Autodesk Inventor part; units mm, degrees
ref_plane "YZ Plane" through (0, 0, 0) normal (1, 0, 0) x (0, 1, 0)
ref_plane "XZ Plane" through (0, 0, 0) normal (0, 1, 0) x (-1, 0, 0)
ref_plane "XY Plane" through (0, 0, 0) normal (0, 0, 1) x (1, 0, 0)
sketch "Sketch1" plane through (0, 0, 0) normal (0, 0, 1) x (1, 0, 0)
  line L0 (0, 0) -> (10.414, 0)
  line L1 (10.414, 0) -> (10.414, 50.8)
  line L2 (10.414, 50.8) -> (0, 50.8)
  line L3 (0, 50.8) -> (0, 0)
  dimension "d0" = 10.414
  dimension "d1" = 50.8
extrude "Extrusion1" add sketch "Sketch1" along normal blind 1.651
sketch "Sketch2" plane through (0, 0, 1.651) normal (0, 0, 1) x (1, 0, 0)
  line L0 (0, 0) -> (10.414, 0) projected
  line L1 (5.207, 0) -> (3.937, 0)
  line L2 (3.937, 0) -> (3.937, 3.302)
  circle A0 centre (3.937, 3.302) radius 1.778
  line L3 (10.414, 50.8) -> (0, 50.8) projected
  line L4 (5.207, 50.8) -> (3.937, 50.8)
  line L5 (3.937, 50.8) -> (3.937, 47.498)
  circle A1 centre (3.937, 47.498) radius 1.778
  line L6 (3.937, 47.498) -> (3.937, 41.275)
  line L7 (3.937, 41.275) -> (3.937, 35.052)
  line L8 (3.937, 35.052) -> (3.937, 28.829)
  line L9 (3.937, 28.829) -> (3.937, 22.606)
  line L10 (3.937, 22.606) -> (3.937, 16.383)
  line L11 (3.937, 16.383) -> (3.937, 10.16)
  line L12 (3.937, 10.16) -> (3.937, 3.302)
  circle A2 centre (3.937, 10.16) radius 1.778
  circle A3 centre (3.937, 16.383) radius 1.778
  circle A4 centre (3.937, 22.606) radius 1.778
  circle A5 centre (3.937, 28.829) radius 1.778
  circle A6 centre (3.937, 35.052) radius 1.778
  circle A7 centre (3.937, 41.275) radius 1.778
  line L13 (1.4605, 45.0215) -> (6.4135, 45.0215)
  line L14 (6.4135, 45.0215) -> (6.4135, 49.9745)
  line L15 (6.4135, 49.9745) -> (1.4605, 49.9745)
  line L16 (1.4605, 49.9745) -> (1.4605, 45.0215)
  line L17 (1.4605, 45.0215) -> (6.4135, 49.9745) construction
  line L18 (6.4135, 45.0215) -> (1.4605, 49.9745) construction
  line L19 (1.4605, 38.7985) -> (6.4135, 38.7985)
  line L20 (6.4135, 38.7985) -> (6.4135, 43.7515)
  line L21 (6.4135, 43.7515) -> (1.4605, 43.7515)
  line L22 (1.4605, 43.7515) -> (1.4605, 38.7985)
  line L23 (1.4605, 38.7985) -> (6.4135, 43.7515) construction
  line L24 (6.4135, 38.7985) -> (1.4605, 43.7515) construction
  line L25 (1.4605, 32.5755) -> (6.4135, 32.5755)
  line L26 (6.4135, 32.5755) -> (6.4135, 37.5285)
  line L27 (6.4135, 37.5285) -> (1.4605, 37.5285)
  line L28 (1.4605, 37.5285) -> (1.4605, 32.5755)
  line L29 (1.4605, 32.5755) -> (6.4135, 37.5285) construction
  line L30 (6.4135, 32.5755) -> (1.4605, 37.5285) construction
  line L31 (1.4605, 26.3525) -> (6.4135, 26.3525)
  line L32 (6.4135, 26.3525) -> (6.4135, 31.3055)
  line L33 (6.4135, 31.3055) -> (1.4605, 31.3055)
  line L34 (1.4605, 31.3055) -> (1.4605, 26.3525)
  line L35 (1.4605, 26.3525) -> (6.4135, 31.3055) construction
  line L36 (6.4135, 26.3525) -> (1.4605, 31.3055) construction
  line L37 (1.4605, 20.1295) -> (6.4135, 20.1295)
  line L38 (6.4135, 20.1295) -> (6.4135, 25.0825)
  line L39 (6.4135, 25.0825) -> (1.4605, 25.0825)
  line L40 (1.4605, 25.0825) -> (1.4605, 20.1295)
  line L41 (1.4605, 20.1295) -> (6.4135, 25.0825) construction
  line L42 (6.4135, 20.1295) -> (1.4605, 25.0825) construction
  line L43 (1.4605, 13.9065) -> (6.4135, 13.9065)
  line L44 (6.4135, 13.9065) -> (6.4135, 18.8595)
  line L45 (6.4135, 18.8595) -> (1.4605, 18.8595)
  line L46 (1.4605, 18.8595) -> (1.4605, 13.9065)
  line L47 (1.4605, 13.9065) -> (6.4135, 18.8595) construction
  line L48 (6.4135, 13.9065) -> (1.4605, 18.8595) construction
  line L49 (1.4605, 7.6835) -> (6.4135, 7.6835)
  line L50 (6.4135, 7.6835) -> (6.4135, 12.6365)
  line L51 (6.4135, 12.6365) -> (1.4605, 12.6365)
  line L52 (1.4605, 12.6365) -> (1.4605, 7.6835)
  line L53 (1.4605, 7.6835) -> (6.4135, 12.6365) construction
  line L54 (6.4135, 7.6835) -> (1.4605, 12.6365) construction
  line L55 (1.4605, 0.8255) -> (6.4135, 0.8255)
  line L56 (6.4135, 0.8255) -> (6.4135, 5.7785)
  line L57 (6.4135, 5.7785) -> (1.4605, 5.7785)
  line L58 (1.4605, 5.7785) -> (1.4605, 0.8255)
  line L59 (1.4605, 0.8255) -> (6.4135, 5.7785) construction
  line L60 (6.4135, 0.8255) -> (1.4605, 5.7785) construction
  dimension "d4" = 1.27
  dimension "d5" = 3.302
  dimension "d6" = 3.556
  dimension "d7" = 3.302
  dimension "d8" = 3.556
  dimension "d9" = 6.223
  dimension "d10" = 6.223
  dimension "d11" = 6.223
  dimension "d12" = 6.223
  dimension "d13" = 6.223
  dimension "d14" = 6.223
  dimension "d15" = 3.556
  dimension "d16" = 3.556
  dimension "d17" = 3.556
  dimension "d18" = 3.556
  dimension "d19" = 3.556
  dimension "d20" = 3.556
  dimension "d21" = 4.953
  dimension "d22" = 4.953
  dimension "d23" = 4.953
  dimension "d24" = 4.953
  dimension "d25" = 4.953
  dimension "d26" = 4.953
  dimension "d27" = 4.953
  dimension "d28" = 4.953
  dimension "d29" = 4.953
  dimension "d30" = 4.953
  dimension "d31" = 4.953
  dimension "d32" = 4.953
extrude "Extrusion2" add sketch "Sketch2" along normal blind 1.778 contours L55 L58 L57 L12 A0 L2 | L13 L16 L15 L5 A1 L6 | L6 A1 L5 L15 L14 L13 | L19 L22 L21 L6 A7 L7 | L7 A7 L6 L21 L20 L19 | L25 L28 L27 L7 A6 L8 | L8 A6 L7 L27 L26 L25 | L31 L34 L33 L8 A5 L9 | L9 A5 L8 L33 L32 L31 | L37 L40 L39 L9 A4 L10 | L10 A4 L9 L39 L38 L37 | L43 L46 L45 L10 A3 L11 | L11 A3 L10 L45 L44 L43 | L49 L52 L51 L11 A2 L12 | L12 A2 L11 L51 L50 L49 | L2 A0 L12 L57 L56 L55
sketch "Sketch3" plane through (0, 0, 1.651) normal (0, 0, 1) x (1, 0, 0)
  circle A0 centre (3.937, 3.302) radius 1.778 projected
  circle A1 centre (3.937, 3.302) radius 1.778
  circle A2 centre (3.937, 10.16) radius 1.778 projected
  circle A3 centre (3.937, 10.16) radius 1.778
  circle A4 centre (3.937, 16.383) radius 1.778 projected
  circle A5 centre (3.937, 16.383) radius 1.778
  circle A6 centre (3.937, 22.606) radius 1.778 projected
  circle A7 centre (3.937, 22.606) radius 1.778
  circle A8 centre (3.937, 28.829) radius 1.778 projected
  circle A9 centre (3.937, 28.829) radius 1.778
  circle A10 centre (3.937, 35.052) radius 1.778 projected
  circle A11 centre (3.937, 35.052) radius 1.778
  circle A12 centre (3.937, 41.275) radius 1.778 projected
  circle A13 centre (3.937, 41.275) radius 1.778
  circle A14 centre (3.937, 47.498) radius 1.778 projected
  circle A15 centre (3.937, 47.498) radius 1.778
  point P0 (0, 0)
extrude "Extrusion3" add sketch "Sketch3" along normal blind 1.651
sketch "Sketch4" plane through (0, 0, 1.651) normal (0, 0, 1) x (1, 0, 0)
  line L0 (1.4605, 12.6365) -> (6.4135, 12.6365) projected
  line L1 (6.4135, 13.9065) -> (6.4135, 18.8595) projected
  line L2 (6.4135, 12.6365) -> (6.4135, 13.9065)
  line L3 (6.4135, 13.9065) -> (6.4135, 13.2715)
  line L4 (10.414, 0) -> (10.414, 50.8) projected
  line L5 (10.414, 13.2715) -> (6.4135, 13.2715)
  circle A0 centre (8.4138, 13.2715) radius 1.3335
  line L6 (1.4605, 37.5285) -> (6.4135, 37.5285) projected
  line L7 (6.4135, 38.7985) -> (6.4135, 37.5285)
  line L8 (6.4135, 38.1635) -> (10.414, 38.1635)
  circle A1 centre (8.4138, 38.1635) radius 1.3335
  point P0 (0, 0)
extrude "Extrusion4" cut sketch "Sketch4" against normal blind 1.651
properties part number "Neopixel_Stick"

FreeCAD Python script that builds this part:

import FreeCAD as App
import Part
import Sketcher
from FreeCAD import Vector
Q = App.Units.Quantity


def add_polygon(sketch, points):
    """Adds a closed chain of lines whose ends are joined by coincident constraints."""
    first, n = sketch.GeometryCount, len(points)
    for a, b in zip(points, points[1:] + points[:1]):
        sketch.addGeometry(Part.LineSegment(App.Vector(*a, 0), App.Vector(*b, 0)), False)
    for i in range(n):
        sketch.addConstraint(Sketcher.Constraint("Coincident", first + i, 2, first + (i + 1) % n, 1))

doc = App.newDocument("Part")
body = doc.addObject("PartDesign::Body", "Body")

# Sketch on XY plane
sketch1 = doc.addObject("Sketcher::SketchObject", "Sketch")
body.addObject(sketch1)
sketch1.AttachmentSupport = (doc.XY_Plane, [""])
sketch1.MapMode = "FlatFace"
add_polygon(sketch1, [(0, 51), (0, 0), (10, 0), (10, 51)])  # lines 0-3
sketch1.addConstraint([
    Sketcher.Constraint("Vertical", 0),
    Sketcher.Constraint("Horizontal", 1),
    Sketcher.Constraint("Vertical", 2),
    Sketcher.Constraint("Horizontal", 3),
    Sketcher.Constraint("Coincident", 0, 2, -1, 1),
    Sketcher.Constraint("DistanceY", 0, 2, 0, 1, Q("2 in")),
    Sketcher.Constraint("DistanceX", 1, 1, 1, 2, Q("0.41 in")),
])
pad1 = doc.addObject("PartDesign::Pad", "Pad")
body.addObject(pad1)
pad1.Profile = sketch1
pad1.Length = Q("0.065 in")

# Sketch on XY plane
sketch2 = doc.addObject("Sketcher::SketchObject", "Sketch001")
body.addObject(sketch2)
sketch2.AttachmentSupport = (doc.XY_Plane, [""])
sketch2.MapMode = "FlatFace"
sketch2.AttachmentOffset = App.Placement(Vector(0, 0, 0.065 * 25.4), App.Rotation())
add_polygon(sketch2, [(1.5, 0.8), (6.4, 0.8), (6.4, 5.8), (1.5, 5.8)])  # lines 0-3
sketch2.addGeometry(Part.Circle(Vector(3.9, 3.3, 0), Vector(0, 0, 1), 1.8), False)  # 4
add_polygon(sketch2, [(1.5, 45), (6.4, 45), (6.4, 50), (1.5, 50)])  # lines 5-8
sketch2.addGeometry(Part.Circle(Vector(3.9, 47.5, 0), Vector(0, 0, 1), 1.8), False)  # 9
add_polygon(sketch2, [(1.5, 38.8), (6.4, 38.8), (6.4, 43.8), (1.5, 43.8)])  # lines 10-13
sketch2.addGeometry(Part.Circle(Vector(3.9, 41.3, 0), Vector(0, 0, 1), 1.8), False)  # 14
add_polygon(sketch2, [(1.5, 32.6), (6.4, 32.6), (6.4, 37.5), (1.5, 37.5)])  # lines 15-18
sketch2.addGeometry(Part.Circle(Vector(3.9, 35.1, 0), Vector(0, 0, 1), 1.8), False)  # 19
add_polygon(sketch2, [(1.5, 26.4), (6.4, 26.4), (6.4, 31.3), (1.5, 31.3)])  # lines 20-23
sketch2.addGeometry(Part.Circle(Vector(3.9, 28.8, 0), Vector(0, 0, 1), 1.8), False)  # 24
add_polygon(sketch2, [(1.5, 20.1), (6.4, 20.1), (6.4, 25.1), (1.5, 25.1)])  # lines 25-28
sketch2.addGeometry(Part.Circle(Vector(3.9, 22.6, 0), Vector(0, 0, 1), 1.8), False)  # 29
add_polygon(sketch2, [(1.5, 13.9), (6.4, 13.9), (6.4, 18.9), (1.5, 18.9)])  # lines 30-33
sketch2.addGeometry(Part.Circle(Vector(3.9, 16.4, 0), Vector(0, 0, 1), 1.8), False)  # 34
add_polygon(sketch2, [(1.5, 7.7), (6.4, 7.7), (6.4, 12.6), (1.5, 12.6)])  # lines 35-38
sketch2.addGeometry(Part.Circle(Vector(3.9, 10.2, 0), Vector(0, 0, 1), 1.8), False)  # 39
sketch2.addConstraint([
    Sketcher.Constraint("Horizontal", 0),
    Sketcher.Constraint("Vertical", 1),
    Sketcher.Constraint("Horizontal", 2),
    Sketcher.Constraint("Vertical", 3),
    Sketcher.Constraint("Horizontal", 5),
    Sketcher.Constraint("Vertical", 6),
    Sketcher.Constraint("Horizontal", 7),
    Sketcher.Constraint("Vertical", 8),
    Sketcher.Constraint("Horizontal", 10),
    Sketcher.Constraint("Vertical", 11),
    Sketcher.Constraint("Horizontal", 12),
    Sketcher.Constraint("Vertical", 13),
    Sketcher.Constraint("Horizontal", 15),
    Sketcher.Constraint("Vertical", 16),
    Sketcher.Constraint("Horizontal", 17),
    Sketcher.Constraint("Vertical", 18),
    Sketcher.Constraint("Horizontal", 20),
    Sketcher.Constraint("Vertical", 21),
    Sketcher.Constraint("Horizontal", 22),
    Sketcher.Constraint("Vertical", 23),
    Sketcher.Constraint("Horizontal", 25),
    Sketcher.Constraint("Vertical", 26),
    Sketcher.Constraint("Horizontal", 27),
    Sketcher.Constraint("Vertical", 28),
    Sketcher.Constraint("Horizontal", 30),
    Sketcher.Constraint("Vertical", 31),
    Sketcher.Constraint("Horizontal", 32),
    Sketcher.Constraint("Vertical", 33),
    Sketcher.Constraint("Horizontal", 35),
    Sketcher.Constraint("Vertical", 36),
    Sketcher.Constraint("Horizontal", 37),
    Sketcher.Constraint("Vertical", 38),
    Sketcher.Constraint("Equal", 4, 9),
    Sketcher.Constraint("Equal", 9, 14),
    Sketcher.Constraint("Equal", 14, 19),
    Sketcher.Constraint("Equal", 19, 24),
    Sketcher.Constraint("Equal", 24, 29),
    Sketcher.Constraint("Equal", 29, 34),
    Sketcher.Constraint("Equal", 34, 39),
    Sketcher.Constraint("Vertical", 4, 3, 9, 3),
    Sketcher.Constraint("Vertical", 9, 3, 14, 3),
    Sketcher.Constraint("Vertical", 14, 3, 19, 3),
    Sketcher.Constraint("Vertical", 19, 3, 24, 3),
    Sketcher.Constraint("Vertical", 24, 3, 29, 3),
    Sketcher.Constraint("Vertical", 29, 3, 34, 3),
    Sketcher.Constraint("Vertical", 34, 3, 39, 3),
    Sketcher.Constraint("Vertical", 1, 2, 5, 2),
    Sketcher.Constraint("Vertical", 3, 2, 7, 2),
    Sketcher.Constraint("Vertical", 6, 2, 10, 2),
    Sketcher.Constraint("Vertical", 8, 2, 12, 2),
    Sketcher.Constraint("Vertical", 11, 2, 15, 2),
    Sketcher.Constraint("Vertical", 13, 2, 17, 2),
    Sketcher.Constraint("Vertical", 16, 2, 20, 2),
    Sketcher.Constraint("Vertical", 18, 2, 22, 2),
    Sketcher.Constraint("Vertical", 21, 2, 25, 2),
    Sketcher.Constraint("Vertical", 23, 2, 27, 2),
    Sketcher.Constraint("Vertical", 26, 2, 30, 2),
    Sketcher.Constraint("Vertical", 28, 2, 32, 2),
    Sketcher.Constraint("Vertical", 31, 2, 35, 2),
    Sketcher.Constraint("Vertical", 33, 2, 37, 2),
    Sketcher.Constraint("Equal", 37, 1),
    Sketcher.Constraint("Equal", 3, 6),
    Sketcher.Constraint("Equal", 8, 11),
    Sketcher.Constraint("Equal", 13, 16),
    Sketcher.Constraint("Equal", 18, 21),
    Sketcher.Constraint("Equal", 23, 26),
    Sketcher.Constraint("Equal", 28, 31),
    Sketcher.Constraint("Equal", 33, 36),
    Sketcher.Constraint("Diameter", 4, Q("0.14 in")),
    Sketcher.Constraint("DistanceX", 0, 1, 0, 2, Q("0.195 in")),
    Sketcher.Constraint("DistanceY", -1, 1, 4, 3, Q("0.13 in")),
    Sketcher.Constraint("DistanceY", 11, 2, 5, 2, Q("0.05 in")),
    Sketcher.Constraint("DistanceY", 16, 2, 10, 2, Q("0.05 in")),
    Sketcher.Constraint("DistanceY", 21, 2, 15, 2, Q("0.05 in")),
    Sketcher.Constraint("DistanceY", 26, 2, 20, 2, Q("0.05 in")),
    Sketcher.Constraint("DistanceY", 31, 2, 25, 2, Q("0.05 in")),
    Sketcher.Constraint("DistanceY", 36, 2, 30, 2, Q("0.05 in")),
    Sketcher.Constraint("DistanceY", 14, 3, 9, 3, Q("0.245 in")),
    Sketcher.Constraint("DistanceY", 19, 3, 14, 3, Q("0.245 in")),
    Sketcher.Constraint("DistanceY", 24, 3, 19, 3, Q("0.245 in")),
    Sketcher.Constraint("DistanceY", 29, 3, 24, 3, Q("0.245 in")),
    Sketcher.Constraint("DistanceY", 34, 3, 29, 3, Q("0.245 in")),
    Sketcher.Constraint("DistanceY", 39, 3, 34, 3, Q("0.245 in")),
    Sketcher.Constraint("DistanceY", -1, 1, 39, 3, Q("0.4 in")),
    Sketcher.Constraint("DistanceY", 1, 2, 30, 2, Q("0.32 in")),
    Sketcher.Constraint("DistanceX", -1, 1, 4, 3, Q("0.155 in")),
    Sketcher.Constraint("DistanceX", -1, 1, 0, 2, Q("0.2525 in")),
    Sketcher.Constraint("DistanceY", -1, 1, 0, 2, Q("0.0325 in")),
])
pad2 = doc.addObject("PartDesign::Pad", "Pad001")
body.addObject(pad2)
pad2.Profile = sketch2
pad2.Length = Q("0.07 in")

# Sketch on XY plane
sketch3 = doc.addObject("Sketcher::SketchObject", "Sketch002")
body.addObject(sketch3)
sketch3.AttachmentSupport = (doc.XY_Plane, [""])
sketch3.MapMode = "FlatFace"
sketch3.AttachmentOffset = App.Placement(Vector(0, 0, 0.065 * 25.4), App.Rotation())
sketch3.addGeometry([
    Part.Circle(Vector(3.9, 3.3, 0), Vector(0, 0, 1), 1.8),  # 0
    Part.Circle(Vector(3.9, 10.2, 0), Vector(0, 0, 1), 1.8),  # 1
    Part.Circle(Vector(3.9, 16.4, 0), Vector(0, 0, 1), 1.8),  # 2
    Part.Circle(Vector(3.9, 22.6, 0), Vector(0, 0, 1), 1.8),  # 3
    Part.Circle(Vector(3.9, 28.8, 0), Vector(0, 0, 1), 1.8),  # 4
    Part.Circle(Vector(3.9, 35.1, 0), Vector(0, 0, 1), 1.8),  # 5
    Part.Circle(Vector(3.9, 41.3, 0), Vector(0, 0, 1), 1.8),  # 6
    Part.Circle(Vector(3.9, 47.5, 0), Vector(0, 0, 1), 1.8),  # 7
], False)
sketch3.addConstraint([
    Sketcher.Constraint("Equal", 0, 1),
    Sketcher.Constraint("Equal", 1, 2),
    Sketcher.Constraint("Equal", 2, 3),
    Sketcher.Constraint("Equal", 3, 4),
    Sketcher.Constraint("Equal", 4, 5),
    Sketcher.Constraint("Equal", 5, 6),
    Sketcher.Constraint("Equal", 6, 7),
    Sketcher.Constraint("Vertical", 0, 3, 1, 3),
    Sketcher.Constraint("Vertical", 1, 3, 2, 3),
    Sketcher.Constraint("Vertical", 2, 3, 3, 3),
    Sketcher.Constraint("Vertical", 3, 3, 4, 3),
    Sketcher.Constraint("Vertical", 4, 3, 5, 3),
    Sketcher.Constraint("Vertical", 5, 3, 6, 3),
    Sketcher.Constraint("Vertical", 6, 3, 7, 3),
    Sketcher.Constraint("Diameter", 0, Q("0.14 in")),
    Sketcher.Constraint("DistanceY", -1, 1, 1, 3, Q("0.4 in")),
    Sketcher.Constraint("DistanceY", -1, 1, 0, 3, Q("0.13 in")),
    Sketcher.Constraint("DistanceY", -1, 1, 3, 3, Q("0.89 in")),
    Sketcher.Constraint("DistanceY", -1, 1, 5, 3, Q("1.38 in")),
    Sketcher.Constraint("DistanceY", -1, 1, 7, 3, Q("1.87 in")),
    Sketcher.Constraint("DistanceY", 2, 3, 4, 3, Q("0.49 in")),
    Sketcher.Constraint("DistanceY", 4, 3, 6, 3, Q("0.49 in")),
    Sketcher.Constraint("DistanceX", -1, 1, 0, 3, Q("0.155 in")),
    Sketcher.Constraint("DistanceY", -1, 1, 2, 3, Q("0.645 in")),
])
pad3 = doc.addObject("PartDesign::Pad", "Pad002")
body.addObject(pad3)
pad3.Profile = sketch3
pad3.Length = Q("0.065 in")

# Sketch on XY plane
sketch4 = doc.addObject("Sketcher::SketchObject", "Sketch003")
body.addObject(sketch4)
sketch4.AttachmentSupport = (doc.XY_Plane, [""])
sketch4.MapMode = "FlatFace"
sketch4.AttachmentOffset = App.Placement(Vector(0, 0, 0.065 * 25.4), App.Rotation())
sketch4.addGeometry([
    Part.Circle(Vector(8.4, 38.2, 0), Vector(0, 0, 1), 1.3),
    Part.Circle(Vector(8.4, 13.3, 0), Vector(0, 0, 1), 1.3),
], False)
sketch4.addConstraint([
    Sketcher.Constraint("Equal", 0, 1),
    Sketcher.Constraint("Vertical", 0, 3, 1, 3),
    Sketcher.Constraint("Diameter", 0, Q("0.105 in")),
    Sketcher.Constraint("DistanceY", 1, 3, 0, 3, Q("0.98 in")),
    Sketcher.Constraint("DistanceY", -1, 1, 0, 3, Q("1.5025 in")),
    Sketcher.Constraint("DistanceX", -1, 1, 0, 3, Q("8.4138 mm")),
])
pocket1 = doc.addObject("PartDesign::Pocket", "Pocket")
body.addObject(pocket1)
pocket1.Profile = sketch4
pocket1.Length = Q("0.065 in")

doc.recompute()
